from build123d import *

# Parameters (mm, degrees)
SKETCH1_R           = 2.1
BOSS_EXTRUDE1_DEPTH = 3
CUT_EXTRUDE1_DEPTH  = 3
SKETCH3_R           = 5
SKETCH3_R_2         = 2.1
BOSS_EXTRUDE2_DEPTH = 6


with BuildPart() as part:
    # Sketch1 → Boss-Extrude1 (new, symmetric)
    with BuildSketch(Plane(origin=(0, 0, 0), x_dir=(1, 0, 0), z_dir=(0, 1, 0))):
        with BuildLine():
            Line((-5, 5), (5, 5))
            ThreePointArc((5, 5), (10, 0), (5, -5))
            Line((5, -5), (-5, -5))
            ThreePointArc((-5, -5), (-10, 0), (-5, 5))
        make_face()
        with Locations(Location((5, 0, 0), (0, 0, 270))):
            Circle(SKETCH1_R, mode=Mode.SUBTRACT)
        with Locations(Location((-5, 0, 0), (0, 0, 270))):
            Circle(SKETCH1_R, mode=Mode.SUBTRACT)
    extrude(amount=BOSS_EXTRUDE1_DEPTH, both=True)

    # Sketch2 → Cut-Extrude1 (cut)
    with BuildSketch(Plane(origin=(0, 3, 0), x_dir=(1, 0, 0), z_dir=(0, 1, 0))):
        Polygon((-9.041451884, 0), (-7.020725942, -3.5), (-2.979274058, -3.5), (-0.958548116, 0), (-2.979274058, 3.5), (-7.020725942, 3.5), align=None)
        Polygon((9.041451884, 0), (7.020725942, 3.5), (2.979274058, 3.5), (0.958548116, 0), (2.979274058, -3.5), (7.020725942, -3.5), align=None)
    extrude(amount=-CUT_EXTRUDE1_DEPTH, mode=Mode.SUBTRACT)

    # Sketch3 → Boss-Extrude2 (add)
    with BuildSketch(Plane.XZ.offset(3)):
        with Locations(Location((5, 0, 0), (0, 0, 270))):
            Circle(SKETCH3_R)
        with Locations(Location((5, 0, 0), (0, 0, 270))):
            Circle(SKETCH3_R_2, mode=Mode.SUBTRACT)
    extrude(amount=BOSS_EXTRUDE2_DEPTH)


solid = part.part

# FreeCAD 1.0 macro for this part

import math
import FreeCAD as App
import Part
import Sketcher
Q = App.Units.Quantity


def add_polygon(sketch, points):
    """Adds a closed chain of lines whose ends are joined by coincident constraints."""
    first, n = sketch.GeometryCount, len(points)
    for a, b in zip(points, points[1:] + points[:1]):
        sketch.addGeometry(Part.LineSegment(App.Vector(*a, 0), App.Vector(*b, 0)), False)
    for i in range(n):
        sketch.addConstraint(Sketcher.Constraint("Coincident", first + i, 2, first + (i + 1) % n, 1))

doc = App.newDocument("Part")
body = doc.addObject("PartDesign::Body", "Body")

# Sketch on XZ plane
sketch1 = body.newObject("Sketcher::SketchObject", "Sketch")
sketch1.AttachmentSupport = (doc.getObject("XZ_Plane"), [""])
sketch1.MapMode = "FlatFace"
sketch1.addGeometry([
    Part.LineSegment(App.Vector(5, -5, 0), App.Vector(-5, -5, 0)),  # 0
    Part.ArcOfCircle(Part.Circle(App.Vector(-5, 0, 0), App.Vector(0, 0, 1), 5), math.radians(90), math.radians(270)),  # 1
    Part.LineSegment(App.Vector(-5, 5, 0), App.Vector(5, 5, 0)),  # 2
    Part.ArcOfCircle(Part.Circle(App.Vector(5, 0, 0), App.Vector(0, 0, 1), 5), math.radians(-90), math.radians(90)),  # 3
    Part.Circle(App.Vector(5, 0, 0), App.Vector(0, 0, 1), 2.1),  # 4
    Part.Circle(App.Vector(-5, 0, 0), App.Vector(0, 0, 1), 2.1),  # 5
], False)
sketch1.addConstraint([
    Sketcher.Constraint("Tangent", 0, 2, 1, 2),
    Sketcher.Constraint("Tangent", 1, 1, 2, 1),
    Sketcher.Constraint("Tangent", 2, 2, 3, 2),
    Sketcher.Constraint("Tangent", 3, 1, 0, 1),
    Sketcher.Constraint("Horizontal", 0),
    Sketcher.Constraint("Horizontal", 2),
    Sketcher.Constraint("Coincident", 4, 3, 3, 3),
    Sketcher.Constraint("Coincident", 5, 3, 1, 3),
    Sketcher.Constraint("Equal", 4, 5),
    Sketcher.Constraint("Symmetric", 1, 3, 3, 3, -1, 1),
    Sketcher.Constraint("Radius", 1, 5.0),
    Sketcher.Constraint("Diameter", 4, 4.2),
    Sketcher.Constraint("DistanceX", 0, 2, 0, 1, 10.0),
])
pad1 = body.newObject("PartDesign::Pad", "Pad")
pad1.Profile = sketch1
pad1.Length = 6
pad1.Midplane = True

# Sketch on XZ plane
sketch2 = body.newObject("Sketcher::SketchObject", "Sketch001")
sketch2.AttachmentSupport = (doc.getObject("XZ_Plane"), [""])
sketch2.MapMode = "FlatFace"
sketch2.AttachmentOffset = App.Placement(App.Vector(0, 0, -3), App.Rotation())
add_polygon(sketch2, [(-9, 0), (-7, 3.5), (-3, 3.5), (-1, 0), (-3, -3.5), (-7, -3.5)])  # lines 0-5
add_polygon(sketch2, [(9, 0), (7, -3.5), (3, -3.5), (1, 0), (3, 3.5), (7, 3.5)])  # lines 6-11
sketch2.addConstraint([
    Sketcher.Constraint("Horizontal", 1),
    Sketcher.Constraint("Horizontal", 4),
    Sketcher.Constraint("Horizontal", 7),
    Sketcher.Constraint("Horizontal", 10),
    Sketcher.Constraint("Symmetric", 0, 2, 6, 2, -1, 1),
    Sketcher.Constraint("Symmetric", 2, 2, 8, 2, -1, 1),
    Sketcher.Constraint("Symmetric", 3, 2, 9, 2, -1, 1),
    Sketcher.Constraint("Symmetric", 5, 2, 11, 2, -1, 1),
    Sketcher.Constraint("Symmetric", 4, 2, 6, 2, -2),
    Sketcher.Constraint("PointOnObject", 2, 2, -1),
    Sketcher.Constraint("PointOnObject", 5, 2, -1),
    Sketcher.Constraint("Parallel", 0, 3),
    Sketcher.Constraint("Parallel", 2, 5),
    Sketcher.Constraint("Parallel", 5, 8),
    Sketcher.Constraint("Parallel", 8, 11),
    Sketcher.Constraint("Angle", 0, Q("60 deg")),
    Sketcher.Constraint("DistanceY", 3, 2, 1, 2, 7.0),
    Sketcher.Constraint("DistanceX", 3, 2, 6, 2, 10.0),
    Sketcher.Constraint("DistanceX", 1, 1, 1, 2, 4.041452),
])
pocket1 = body.newObject("PartDesign::Pocket", "Pocket")
pocket1.Profile = sketch2
pocket1.Length = 3
pocket1.Reversed = True

# Sketch on XZ plane
sketch3 = body.newObject("Sketcher::SketchObject", "Sketch002")
sketch3.AttachmentSupport = (doc.getObject("XZ_Plane"), [""])
sketch3.MapMode = "FlatFace"
sketch3.AttachmentOffset = App.Placement(App.Vector(0, 0, 3), App.Rotation())
sketch3.addGeometry([
    Part.Circle(App.Vector(5, 0, 0), App.Vector(0, 0, 1), 5),
    Part.Circle(App.Vector(5, 0, 0), App.Vector(0, 0, 1), 2.1),
], False)
sketch3.addConstraint([
    Sketcher.Constraint("Coincident", 1, 3, 0, 3),
    Sketcher.Constraint("PointOnObject", 0, 3, -1),
    Sketcher.Constraint("Diameter", 0, 10.0),
    Sketcher.Constraint("Diameter", 1, 4.2),
    Sketcher.Constraint("DistanceX", -1, 1, 0, 3, 5.0),
])
pad2 = body.newObject("PartDesign::Pad", "Pad001")
pad2.Profile = sketch3
pad2.Length = 6

doc.recompute()
